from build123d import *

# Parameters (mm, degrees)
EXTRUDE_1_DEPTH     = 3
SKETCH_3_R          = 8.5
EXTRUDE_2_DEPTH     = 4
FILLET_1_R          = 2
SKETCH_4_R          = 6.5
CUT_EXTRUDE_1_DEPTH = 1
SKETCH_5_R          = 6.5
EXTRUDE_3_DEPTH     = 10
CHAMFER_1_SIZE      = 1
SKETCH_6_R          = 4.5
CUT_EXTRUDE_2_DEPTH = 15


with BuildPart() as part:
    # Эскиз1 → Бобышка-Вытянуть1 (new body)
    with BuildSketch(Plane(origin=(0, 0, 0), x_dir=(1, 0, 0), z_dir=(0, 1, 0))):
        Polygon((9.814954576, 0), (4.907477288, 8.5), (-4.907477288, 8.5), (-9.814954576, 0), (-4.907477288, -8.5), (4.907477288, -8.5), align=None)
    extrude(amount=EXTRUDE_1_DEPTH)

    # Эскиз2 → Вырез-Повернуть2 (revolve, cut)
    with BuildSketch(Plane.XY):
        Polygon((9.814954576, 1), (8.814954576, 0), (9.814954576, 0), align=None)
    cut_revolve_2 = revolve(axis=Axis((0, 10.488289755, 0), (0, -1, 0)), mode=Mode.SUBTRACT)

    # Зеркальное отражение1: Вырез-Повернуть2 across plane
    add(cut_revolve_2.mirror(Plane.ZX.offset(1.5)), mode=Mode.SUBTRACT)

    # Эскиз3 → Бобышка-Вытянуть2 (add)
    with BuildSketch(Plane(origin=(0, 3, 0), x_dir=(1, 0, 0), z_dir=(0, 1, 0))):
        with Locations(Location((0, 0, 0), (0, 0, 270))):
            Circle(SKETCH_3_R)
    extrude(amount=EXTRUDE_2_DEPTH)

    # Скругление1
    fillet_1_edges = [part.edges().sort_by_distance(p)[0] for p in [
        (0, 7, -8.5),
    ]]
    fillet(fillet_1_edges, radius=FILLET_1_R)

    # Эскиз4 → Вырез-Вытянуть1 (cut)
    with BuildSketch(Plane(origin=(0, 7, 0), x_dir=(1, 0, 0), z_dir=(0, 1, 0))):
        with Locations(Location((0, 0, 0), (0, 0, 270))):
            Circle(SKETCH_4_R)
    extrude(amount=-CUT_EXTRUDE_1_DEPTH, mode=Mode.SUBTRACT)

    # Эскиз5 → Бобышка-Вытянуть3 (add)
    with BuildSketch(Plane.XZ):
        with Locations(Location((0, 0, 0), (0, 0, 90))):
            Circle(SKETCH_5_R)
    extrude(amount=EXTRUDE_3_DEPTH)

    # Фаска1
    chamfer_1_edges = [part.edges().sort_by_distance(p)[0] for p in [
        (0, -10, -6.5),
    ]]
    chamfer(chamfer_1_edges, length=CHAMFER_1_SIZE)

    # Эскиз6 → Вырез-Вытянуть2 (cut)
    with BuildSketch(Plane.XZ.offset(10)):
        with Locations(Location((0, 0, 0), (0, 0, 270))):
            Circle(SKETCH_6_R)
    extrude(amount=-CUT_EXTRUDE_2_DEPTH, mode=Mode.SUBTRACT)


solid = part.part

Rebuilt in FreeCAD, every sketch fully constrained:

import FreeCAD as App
import Part
import Sketcher
Q = App.Units.Quantity


def edges_at(feature, points):
    """Names of the edges that pass closest to the given points."""
    edges = feature.Shape.Edges
    near = lambda p: min(range(len(edges)), key=lambda i: edges[i].distToShape(Part.Vertex(*p))[0])
    return sorted({f"Edge{near(p) + 1}" for p in points})

doc = App.newDocument("Part")
body = doc.addObject("PartDesign::Body", "Body")

# Sketch on XZ plane
sketch1 = body.newObject("Sketcher::SketchObject", "Sketch")
sketch1.AttachmentSupport = (doc.getObject("XZ_Plane"), [""])
sketch1.MapMode = "FlatFace"
sketch1.addGeometry([
    Part.LineSegment(App.Vector(10, 0, 0), App.Vector(5, -8, 0)),  # 0
    Part.LineSegment(App.Vector(5, -8, 0), App.Vector(-5, -8, 0)),  # 1
    Part.LineSegment(App.Vector(-5, -8, 0), App.Vector(-10, 0, 0)),  # 2
    Part.LineSegment(App.Vector(-10, 0, 0), App.Vector(-5, 8, 0)),  # 3
    Part.LineSegment(App.Vector(-5, 8, 0), App.Vector(5, 8, 0)),  # 4
    Part.LineSegment(App.Vector(5, 8, 0), App.Vector(10, 0, 0)),  # 5
], False)
sketch1.addConstraint([
    Sketcher.Constraint("Coincident", 0, 2, 1, 1),
    Sketcher.Constraint("Coincident", 1, 2, 2, 1),
    Sketcher.Constraint("Coincident", 2, 2, 3, 1),
    Sketcher.Constraint("Coincident", 3, 2, 4, 1),
    Sketcher.Constraint("Coincident", 4, 2, 5, 1),
    Sketcher.Constraint("Coincident", 5, 2, 0, 1),
    Sketcher.Constraint("Horizontal", 1),
    Sketcher.Constraint("Horizontal", 4),
    Sketcher.Constraint("Symmetric", 0, 2, 3, 2, -1, 1),
    Sketcher.Constraint("Symmetric", 2, 2, 5, 2, -1, 1),
    Sketcher.Constraint("PointOnObject", 2, 2, -1),
    Sketcher.Constraint("Parallel", 2, 5),
    Sketcher.Constraint("Vertical", 1, 2, 3, 2),
    Sketcher.Constraint("Angle", 0, Q("-120 deg")),
    Sketcher.Constraint("DistanceY", 1, 2, 3, 2, Q("17 mm")),
    Sketcher.Constraint("DistanceX", 1, 2, 1, 1, Q("9.814955 mm")),
])
pad1 = body.newObject("PartDesign::Pad", "Pad")
pad1.Profile = sketch1
pad1.Length = 3
pad1.Reversed = True

# Sketch on XY plane
sketch2 = body.newObject("Sketcher::SketchObject", "Sketch001")
sketch2.AttachmentSupport = (doc.getObject("XY_Plane"), [""])
sketch2.MapMode = "FlatFace"
sketch2.addGeometry([
    Part.LineSegment(App.Vector(9.8, 1, 0), App.Vector(8.8, 0, 0)),
    Part.LineSegment(App.Vector(8.8, 0, 0), App.Vector(9.8, 0, 0)),
    Part.LineSegment(App.Vector(9.8, 0, 0), App.Vector(9.8, 1, 0)),
], False)
sketch2.addConstraint([
    Sketcher.Constraint("Coincident", 0, 2, 1, 1),
    Sketcher.Constraint("Coincident", 1, 2, 2, 1),
    Sketcher.Constraint("Coincident", 2, 2, 0, 1),
    Sketcher.Constraint("Horizontal", 1),
    Sketcher.Constraint("Vertical", 2),
    Sketcher.Constraint("PointOnObject", 0, 2, -1),
    Sketcher.Constraint("Equal", 1, 2),
    Sketcher.Constraint("DistanceX", 1, 1, 1, 2, Q("1 mm")),
    Sketcher.Constraint("DistanceX", -1, 1, 0, 2, Q("8.814955 mm")),
])
groove = body.newObject("PartDesign::Groove", "Groove")
groove.Profile = sketch2
groove.ReferenceAxis = (sketch2, ["V_Axis"])
groove.Angle = 360
doc.recompute()

datumplane = body.newObject("PartDesign::Plane", "DatumPlane")
datumplane.AttachmentSupport = (doc.getObject("XZ_Plane"), [""])
datumplane.MapMode = "FlatFace"
datumplane.AttachmentOffset = App.Placement(App.Vector(0, 0, -1.5), App.Rotation())
mirrored = body.newObject("PartDesign::Mirrored", "Mirrored")
mirrored.Originals = [groove]
mirrored.MirrorPlane = (datumplane, [""])
body.Tip = mirrored

# Sketch on XZ plane
sketch3 = body.newObject("Sketcher::SketchObject", "Sketch002")
sketch3.AttachmentSupport = (doc.getObject("XZ_Plane"), [""])
sketch3.MapMode = "FlatFace"
sketch3.AttachmentOffset = App.Placement(App.Vector(0, 0, -3), App.Rotation())
sketch3.addGeometry(Part.Circle(App.Vector(0, 0, 0), App.Vector(0, 0, 1), 8), False)
sketch3.addConstraint([
    Sketcher.Constraint("Coincident", 0, 3, -1, 1),
    Sketcher.Constraint("Diameter", 0, Q("17 mm")),
])
pad2 = body.newObject("PartDesign::Pad", "Pad001")
pad2.Profile = sketch3
pad2.Length = 4
pad2.Reversed = True
doc.recompute()

fillet = body.newObject("PartDesign::Fillet", "Fillet")
fillet.Base = (pad2, edges_at(pad2, [(0, 7, -8.5)]))
fillet.Radius = 2

# Sketch on XZ plane
sketch4 = body.newObject("Sketcher::SketchObject", "Sketch003")
sketch4.AttachmentSupport = (doc.getObject("XZ_Plane"), [""])
sketch4.MapMode = "FlatFace"
sketch4.AttachmentOffset = App.Placement(App.Vector(0, 0, -7), App.Rotation())
sketch4.addGeometry(Part.Circle(App.Vector(0, 0, 0), App.Vector(0, 0, 1), 6), False)
sketch4.addConstraint([
    Sketcher.Constraint("Coincident", 0, 3, -1, 1),
    Sketcher.Constraint("Diameter", 0, Q("13 mm")),
])
pocket1 = body.newObject("PartDesign::Pocket", "Pocket")
pocket1.Profile = sketch4
pocket1.Length = 1
pocket1.Reversed = True

# Sketch on XZ plane
sketch5 = body.newObject("Sketcher::SketchObject", "Sketch004")
sketch5.AttachmentSupport = (doc.getObject("XZ_Plane"), [""])
sketch5.MapMode = "FlatFace"
sketch5.addGeometry(Part.Circle(App.Vector(0, 0, 0), App.Vector(0, 0, 1), 6), False)
sketch5.addConstraint([
    Sketcher.Constraint("Coincident", 0, 3, -1, 1),
    Sketcher.Constraint("Diameter", 0, Q("13 mm")),
])
pad3 = body.newObject("PartDesign::Pad", "Pad002")
pad3.Profile = sketch5
pad3.Length = 10
doc.recompute()

chamfer = body.newObject("PartDesign::Chamfer", "Chamfer")
chamfer.Base = (pad3, edges_at(pad3, [(0, -10, -6.5)]))
chamfer.Size = 1

# Sketch on XZ plane
sketch6 = body.newObject("Sketcher::SketchObject", "Sketch005")
sketch6.AttachmentSupport = (doc.getObject("XZ_Plane"), [""])
sketch6.MapMode = "FlatFace"
sketch6.AttachmentOffset = App.Placement(App.Vector(0, 0, 10), App.Rotation())
sketch6.addGeometry(Part.Circle(App.Vector(0, 0, 0), App.Vector(0, 0, 1), 4.5), False)
sketch6.addConstraint([
    Sketcher.Constraint("Coincident", 0, 3, -1, 1),
    Sketcher.Constraint("Diameter", 0, Q("9 mm")),
])
pocket2 = body.newObject("PartDesign::Pocket", "Pocket001")
pocket2.Profile = sketch6
pocket2.Length = 15

doc.recompute()
